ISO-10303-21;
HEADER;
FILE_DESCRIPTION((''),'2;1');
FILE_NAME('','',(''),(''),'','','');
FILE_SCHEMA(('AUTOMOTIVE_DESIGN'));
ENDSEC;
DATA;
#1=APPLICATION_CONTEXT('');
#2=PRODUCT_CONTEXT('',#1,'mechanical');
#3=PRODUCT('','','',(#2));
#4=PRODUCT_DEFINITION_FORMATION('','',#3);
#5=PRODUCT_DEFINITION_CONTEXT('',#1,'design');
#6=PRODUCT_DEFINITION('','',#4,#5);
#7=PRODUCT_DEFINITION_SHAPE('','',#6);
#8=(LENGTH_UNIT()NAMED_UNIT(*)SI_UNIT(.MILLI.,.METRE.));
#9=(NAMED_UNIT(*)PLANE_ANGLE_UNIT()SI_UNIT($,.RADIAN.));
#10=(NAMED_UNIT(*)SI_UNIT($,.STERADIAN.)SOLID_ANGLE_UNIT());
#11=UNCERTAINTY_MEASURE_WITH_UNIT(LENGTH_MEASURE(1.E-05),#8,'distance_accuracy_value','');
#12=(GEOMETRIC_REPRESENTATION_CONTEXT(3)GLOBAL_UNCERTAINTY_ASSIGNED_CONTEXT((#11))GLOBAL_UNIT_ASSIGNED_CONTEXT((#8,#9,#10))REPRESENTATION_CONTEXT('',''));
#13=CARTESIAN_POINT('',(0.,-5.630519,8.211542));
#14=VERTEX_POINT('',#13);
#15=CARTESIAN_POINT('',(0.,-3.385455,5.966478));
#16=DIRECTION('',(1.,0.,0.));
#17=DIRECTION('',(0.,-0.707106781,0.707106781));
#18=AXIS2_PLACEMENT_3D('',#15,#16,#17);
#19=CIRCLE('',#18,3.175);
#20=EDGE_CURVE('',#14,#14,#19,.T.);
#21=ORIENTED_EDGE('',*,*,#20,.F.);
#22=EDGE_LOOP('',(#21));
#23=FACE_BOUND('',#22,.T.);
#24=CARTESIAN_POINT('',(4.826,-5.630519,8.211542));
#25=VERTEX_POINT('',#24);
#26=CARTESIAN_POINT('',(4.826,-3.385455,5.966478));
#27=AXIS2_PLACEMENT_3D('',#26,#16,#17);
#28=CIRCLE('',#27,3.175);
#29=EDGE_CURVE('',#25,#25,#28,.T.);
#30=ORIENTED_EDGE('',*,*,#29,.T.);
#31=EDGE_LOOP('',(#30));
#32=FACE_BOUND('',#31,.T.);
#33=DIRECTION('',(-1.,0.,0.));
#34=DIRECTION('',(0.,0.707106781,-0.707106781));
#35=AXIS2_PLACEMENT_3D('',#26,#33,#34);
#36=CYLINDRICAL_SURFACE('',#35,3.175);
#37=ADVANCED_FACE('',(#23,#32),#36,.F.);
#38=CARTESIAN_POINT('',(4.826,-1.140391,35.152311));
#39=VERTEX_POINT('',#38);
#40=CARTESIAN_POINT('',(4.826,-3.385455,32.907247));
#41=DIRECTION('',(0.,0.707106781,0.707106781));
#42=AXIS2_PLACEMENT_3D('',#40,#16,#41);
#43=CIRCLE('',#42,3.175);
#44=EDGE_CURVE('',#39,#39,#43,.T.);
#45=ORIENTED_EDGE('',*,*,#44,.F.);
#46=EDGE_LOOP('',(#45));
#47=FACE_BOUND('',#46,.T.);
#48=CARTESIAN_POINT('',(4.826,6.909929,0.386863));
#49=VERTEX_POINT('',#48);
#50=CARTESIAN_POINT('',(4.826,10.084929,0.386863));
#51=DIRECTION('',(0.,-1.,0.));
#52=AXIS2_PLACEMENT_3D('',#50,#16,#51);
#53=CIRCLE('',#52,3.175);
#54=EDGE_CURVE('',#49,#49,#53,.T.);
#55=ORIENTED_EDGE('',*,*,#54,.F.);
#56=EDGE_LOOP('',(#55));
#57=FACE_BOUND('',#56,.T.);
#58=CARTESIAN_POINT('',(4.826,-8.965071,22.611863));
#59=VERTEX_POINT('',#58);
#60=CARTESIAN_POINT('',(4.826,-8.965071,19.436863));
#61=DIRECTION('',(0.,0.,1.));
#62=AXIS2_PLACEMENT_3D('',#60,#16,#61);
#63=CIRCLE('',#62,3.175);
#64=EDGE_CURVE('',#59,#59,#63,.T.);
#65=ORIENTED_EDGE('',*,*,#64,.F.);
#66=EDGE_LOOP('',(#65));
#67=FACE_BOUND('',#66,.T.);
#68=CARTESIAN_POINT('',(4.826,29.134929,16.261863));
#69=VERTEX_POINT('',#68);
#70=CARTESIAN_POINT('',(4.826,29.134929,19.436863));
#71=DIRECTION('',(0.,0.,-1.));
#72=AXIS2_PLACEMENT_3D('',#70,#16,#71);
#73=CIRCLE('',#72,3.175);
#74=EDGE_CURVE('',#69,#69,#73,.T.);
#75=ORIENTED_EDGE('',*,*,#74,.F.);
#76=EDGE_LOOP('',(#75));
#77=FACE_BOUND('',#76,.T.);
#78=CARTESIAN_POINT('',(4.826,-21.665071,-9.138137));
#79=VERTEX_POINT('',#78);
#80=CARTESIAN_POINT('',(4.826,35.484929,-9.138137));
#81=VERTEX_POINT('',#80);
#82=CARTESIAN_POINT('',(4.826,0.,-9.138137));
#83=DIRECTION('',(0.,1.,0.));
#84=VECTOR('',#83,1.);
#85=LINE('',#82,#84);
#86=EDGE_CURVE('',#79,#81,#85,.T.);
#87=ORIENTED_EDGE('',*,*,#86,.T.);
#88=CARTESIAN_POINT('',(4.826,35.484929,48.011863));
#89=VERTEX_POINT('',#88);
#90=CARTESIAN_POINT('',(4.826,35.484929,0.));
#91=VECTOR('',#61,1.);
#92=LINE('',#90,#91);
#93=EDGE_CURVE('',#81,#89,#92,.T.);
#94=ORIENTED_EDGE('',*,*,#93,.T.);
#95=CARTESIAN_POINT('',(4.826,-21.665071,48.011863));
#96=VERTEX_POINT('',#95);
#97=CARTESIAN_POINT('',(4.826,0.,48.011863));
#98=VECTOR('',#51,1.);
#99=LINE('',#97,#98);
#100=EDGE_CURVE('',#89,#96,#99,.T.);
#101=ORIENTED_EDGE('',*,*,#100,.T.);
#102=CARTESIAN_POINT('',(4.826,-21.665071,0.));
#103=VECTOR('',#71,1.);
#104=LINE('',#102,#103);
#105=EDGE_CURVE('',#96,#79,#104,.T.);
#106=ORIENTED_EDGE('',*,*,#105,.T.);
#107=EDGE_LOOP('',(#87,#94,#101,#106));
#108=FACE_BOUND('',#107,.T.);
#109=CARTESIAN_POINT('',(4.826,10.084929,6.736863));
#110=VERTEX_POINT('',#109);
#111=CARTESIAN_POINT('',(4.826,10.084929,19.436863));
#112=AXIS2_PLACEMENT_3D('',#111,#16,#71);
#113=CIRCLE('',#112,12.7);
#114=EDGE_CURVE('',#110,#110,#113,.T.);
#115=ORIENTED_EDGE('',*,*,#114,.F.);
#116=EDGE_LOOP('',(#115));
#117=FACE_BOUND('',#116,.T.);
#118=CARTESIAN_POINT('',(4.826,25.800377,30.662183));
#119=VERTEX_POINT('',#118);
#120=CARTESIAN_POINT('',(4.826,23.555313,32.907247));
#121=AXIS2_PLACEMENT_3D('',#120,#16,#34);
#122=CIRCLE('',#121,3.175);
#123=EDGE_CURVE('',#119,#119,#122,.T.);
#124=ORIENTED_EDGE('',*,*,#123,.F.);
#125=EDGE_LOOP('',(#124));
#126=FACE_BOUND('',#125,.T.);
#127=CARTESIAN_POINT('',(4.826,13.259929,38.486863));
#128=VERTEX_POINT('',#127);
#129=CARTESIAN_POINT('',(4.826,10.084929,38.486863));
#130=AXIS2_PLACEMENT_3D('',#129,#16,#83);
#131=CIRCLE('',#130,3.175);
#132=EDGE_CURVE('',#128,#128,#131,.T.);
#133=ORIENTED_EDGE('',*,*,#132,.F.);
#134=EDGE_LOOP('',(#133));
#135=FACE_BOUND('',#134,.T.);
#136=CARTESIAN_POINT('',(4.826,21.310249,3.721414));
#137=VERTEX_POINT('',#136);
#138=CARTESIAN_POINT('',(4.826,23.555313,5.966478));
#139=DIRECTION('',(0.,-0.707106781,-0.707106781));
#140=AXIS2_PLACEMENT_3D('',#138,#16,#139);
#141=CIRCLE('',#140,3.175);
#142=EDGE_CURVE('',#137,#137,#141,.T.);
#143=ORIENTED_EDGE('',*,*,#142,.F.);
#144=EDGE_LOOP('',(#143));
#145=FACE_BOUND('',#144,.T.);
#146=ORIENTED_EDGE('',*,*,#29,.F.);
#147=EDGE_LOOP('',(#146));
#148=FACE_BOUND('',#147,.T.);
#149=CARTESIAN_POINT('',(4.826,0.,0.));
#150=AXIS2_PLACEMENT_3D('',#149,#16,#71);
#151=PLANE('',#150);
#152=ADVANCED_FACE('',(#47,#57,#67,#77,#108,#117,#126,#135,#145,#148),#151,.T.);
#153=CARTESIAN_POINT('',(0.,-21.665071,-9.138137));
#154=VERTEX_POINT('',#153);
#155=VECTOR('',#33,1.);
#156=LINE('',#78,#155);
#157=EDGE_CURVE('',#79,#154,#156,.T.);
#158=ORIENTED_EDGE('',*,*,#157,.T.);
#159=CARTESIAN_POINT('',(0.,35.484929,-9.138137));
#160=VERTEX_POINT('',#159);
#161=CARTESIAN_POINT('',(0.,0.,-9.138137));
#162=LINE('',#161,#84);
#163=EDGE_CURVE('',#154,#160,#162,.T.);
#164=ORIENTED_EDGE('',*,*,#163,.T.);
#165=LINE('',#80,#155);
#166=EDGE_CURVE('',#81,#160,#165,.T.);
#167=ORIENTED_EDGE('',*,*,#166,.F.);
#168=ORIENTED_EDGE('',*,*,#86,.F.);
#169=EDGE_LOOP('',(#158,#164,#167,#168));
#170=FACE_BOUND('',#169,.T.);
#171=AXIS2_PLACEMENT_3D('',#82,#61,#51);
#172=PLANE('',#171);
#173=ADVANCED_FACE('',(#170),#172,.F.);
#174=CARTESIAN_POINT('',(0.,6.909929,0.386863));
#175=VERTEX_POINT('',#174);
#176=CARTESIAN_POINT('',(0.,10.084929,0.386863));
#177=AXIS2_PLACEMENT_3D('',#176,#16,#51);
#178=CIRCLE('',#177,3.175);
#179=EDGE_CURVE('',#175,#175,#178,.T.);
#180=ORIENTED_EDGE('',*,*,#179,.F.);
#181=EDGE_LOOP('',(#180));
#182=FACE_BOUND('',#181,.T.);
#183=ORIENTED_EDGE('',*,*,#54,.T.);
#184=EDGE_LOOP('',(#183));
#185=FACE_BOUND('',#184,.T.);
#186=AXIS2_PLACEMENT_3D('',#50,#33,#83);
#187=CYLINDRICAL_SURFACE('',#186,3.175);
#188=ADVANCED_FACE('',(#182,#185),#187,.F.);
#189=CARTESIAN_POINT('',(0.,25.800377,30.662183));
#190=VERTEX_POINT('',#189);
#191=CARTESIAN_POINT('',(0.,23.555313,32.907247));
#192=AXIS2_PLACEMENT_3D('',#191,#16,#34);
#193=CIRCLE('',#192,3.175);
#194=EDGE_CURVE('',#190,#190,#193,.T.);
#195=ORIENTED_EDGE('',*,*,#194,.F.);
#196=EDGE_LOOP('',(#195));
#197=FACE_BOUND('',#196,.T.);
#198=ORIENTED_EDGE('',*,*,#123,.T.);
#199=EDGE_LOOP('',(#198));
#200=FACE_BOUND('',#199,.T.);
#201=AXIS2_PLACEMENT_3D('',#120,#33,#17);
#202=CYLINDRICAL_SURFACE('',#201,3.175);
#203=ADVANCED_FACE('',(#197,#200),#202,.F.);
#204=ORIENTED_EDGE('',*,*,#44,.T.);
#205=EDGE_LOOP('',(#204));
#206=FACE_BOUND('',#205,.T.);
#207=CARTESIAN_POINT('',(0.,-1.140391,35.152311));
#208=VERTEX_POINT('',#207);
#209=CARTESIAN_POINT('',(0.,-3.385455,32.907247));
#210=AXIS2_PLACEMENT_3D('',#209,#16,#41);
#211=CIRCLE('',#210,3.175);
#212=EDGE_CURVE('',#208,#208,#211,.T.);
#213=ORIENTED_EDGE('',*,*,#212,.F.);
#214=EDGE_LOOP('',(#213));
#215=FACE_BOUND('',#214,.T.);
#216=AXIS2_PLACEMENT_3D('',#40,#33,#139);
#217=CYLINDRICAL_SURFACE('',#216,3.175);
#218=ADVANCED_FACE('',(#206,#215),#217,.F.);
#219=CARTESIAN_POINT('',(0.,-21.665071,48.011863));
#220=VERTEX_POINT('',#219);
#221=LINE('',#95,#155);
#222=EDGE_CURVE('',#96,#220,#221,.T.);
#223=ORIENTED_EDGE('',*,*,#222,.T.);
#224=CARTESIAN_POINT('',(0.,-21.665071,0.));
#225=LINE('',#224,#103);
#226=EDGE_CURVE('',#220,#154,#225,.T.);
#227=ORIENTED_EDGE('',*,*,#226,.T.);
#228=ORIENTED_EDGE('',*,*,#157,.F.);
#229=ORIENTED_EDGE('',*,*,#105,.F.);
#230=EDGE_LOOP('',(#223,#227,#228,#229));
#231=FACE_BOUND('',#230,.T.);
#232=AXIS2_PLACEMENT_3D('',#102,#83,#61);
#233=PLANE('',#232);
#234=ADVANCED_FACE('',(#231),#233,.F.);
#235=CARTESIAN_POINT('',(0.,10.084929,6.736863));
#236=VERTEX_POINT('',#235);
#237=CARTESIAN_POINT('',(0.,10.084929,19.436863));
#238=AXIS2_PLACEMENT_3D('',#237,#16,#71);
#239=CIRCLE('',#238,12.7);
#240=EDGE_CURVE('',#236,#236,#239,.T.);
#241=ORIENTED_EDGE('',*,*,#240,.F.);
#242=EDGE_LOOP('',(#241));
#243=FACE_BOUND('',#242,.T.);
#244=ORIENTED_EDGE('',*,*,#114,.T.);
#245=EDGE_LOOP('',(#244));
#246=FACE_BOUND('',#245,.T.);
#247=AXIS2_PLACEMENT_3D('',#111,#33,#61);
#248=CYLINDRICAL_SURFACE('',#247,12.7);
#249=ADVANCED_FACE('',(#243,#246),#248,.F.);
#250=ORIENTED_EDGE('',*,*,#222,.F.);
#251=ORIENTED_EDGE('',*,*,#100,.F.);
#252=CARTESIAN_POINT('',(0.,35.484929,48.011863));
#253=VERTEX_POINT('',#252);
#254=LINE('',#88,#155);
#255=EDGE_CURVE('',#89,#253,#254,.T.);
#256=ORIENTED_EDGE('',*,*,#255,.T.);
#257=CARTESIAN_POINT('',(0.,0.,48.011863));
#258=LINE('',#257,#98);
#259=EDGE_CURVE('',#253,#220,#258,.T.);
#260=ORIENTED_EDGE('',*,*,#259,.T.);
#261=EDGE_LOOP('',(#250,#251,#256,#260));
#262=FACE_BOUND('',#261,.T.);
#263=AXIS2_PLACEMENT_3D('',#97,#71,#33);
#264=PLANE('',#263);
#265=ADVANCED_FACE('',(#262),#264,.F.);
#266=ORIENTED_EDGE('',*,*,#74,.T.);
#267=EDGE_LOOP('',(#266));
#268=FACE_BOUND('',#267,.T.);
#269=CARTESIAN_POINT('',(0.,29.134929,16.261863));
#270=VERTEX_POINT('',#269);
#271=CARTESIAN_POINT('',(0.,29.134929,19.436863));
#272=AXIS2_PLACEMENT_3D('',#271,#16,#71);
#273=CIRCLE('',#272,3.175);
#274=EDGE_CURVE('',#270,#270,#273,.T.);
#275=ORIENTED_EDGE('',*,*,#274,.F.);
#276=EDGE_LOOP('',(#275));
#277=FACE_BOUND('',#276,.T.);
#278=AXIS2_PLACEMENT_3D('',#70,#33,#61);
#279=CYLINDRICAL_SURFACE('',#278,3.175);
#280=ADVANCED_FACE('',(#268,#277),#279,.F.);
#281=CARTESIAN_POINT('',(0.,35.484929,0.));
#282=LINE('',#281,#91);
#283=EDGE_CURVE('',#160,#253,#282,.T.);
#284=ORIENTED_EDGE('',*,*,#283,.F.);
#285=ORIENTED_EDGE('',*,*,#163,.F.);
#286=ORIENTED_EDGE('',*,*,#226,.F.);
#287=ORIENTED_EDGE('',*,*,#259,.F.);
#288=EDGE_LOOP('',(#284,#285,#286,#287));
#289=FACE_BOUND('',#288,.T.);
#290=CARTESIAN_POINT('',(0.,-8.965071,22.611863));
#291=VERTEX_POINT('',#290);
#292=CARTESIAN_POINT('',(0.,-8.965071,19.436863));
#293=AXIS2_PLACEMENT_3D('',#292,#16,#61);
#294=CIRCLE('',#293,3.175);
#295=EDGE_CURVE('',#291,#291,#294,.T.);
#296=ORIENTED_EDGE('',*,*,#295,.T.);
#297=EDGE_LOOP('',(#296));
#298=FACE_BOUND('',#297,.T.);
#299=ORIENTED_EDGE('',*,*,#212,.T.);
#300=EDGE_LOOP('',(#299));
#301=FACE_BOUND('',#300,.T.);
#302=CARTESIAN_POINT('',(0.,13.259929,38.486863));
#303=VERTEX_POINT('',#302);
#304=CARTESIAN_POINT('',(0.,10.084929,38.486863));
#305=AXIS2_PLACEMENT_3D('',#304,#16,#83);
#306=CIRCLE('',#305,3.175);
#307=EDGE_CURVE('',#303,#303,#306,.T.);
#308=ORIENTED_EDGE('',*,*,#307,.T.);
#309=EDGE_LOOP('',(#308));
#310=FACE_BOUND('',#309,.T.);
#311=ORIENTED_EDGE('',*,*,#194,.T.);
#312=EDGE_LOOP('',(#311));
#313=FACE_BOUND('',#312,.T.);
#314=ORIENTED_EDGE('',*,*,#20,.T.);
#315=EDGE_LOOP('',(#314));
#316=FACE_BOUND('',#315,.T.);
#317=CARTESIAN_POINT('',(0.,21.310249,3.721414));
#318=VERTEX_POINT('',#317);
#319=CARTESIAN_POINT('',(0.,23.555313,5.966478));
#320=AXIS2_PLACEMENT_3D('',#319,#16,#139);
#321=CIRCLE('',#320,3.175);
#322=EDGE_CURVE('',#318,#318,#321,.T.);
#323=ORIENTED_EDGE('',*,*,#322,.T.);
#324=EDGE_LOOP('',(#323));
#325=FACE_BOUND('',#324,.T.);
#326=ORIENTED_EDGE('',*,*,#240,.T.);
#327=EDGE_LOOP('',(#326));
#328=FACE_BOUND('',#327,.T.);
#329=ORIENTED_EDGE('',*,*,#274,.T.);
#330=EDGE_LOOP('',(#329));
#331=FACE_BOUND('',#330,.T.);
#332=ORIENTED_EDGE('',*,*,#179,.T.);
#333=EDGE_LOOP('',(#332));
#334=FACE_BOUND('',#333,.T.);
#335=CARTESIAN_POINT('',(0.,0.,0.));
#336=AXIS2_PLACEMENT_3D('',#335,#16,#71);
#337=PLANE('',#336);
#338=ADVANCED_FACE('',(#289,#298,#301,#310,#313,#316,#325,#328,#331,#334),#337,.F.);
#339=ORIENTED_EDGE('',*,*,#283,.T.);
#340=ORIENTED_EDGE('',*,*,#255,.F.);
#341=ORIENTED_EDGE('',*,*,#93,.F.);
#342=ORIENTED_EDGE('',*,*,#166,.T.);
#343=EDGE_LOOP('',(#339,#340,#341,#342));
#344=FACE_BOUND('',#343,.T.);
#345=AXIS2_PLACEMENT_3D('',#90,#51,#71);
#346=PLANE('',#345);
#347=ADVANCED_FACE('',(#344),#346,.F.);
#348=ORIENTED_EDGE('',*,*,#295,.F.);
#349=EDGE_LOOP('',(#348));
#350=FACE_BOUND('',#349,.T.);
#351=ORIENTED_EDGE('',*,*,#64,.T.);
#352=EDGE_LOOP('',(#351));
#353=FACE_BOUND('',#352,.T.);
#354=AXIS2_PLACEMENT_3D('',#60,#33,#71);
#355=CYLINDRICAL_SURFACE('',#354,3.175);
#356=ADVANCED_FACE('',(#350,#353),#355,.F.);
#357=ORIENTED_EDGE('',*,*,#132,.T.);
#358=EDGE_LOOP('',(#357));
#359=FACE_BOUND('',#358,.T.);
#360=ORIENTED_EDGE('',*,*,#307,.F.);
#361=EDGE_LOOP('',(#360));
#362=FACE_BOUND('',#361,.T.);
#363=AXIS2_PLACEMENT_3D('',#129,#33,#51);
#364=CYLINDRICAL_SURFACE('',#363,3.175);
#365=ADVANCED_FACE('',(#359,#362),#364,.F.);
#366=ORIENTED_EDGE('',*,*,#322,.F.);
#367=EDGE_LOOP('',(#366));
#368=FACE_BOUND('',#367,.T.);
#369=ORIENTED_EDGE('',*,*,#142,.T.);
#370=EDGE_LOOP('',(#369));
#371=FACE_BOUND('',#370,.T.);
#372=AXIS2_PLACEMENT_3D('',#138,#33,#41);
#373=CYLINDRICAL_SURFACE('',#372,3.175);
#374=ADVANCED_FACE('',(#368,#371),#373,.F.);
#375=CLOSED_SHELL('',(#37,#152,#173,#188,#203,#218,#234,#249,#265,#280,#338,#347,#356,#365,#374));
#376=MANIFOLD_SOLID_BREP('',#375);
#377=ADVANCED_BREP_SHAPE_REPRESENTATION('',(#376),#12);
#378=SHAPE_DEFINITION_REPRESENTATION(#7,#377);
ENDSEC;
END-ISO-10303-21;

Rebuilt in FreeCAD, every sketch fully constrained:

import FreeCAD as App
import Part
import Sketcher

V = App.Vector
Q = App.Units.Quantity

doc = App.newDocument("Part")
params = doc.addObject("Spreadsheet::Sheet", "Params")
for row, (alias, value) in enumerate([
    ("sketch1_diameter", "1 in"),
    ("sketch1_width", "2.25 in"),
    ("pad1_length", "0.19 in"),
    ("sketch2_diameter", "0.25 in"),
], start=1):
    params.set(f"A{row}", alias)
    params.set(f"B{row}", "=" + value)
    params.setAlias(f"B{row}", alias)

body = doc.addObject("PartDesign::Body", "Body")

sketch1 = doc.addObject("Sketcher::SketchObject", "Sketch")
body.addObject(sketch1)
sketch1.AttachmentSupport = (doc.YZ_Plane, [""])
sketch1.MapMode = "FlatFace"
sketch1.addGeometry([
    Part.LineSegment(V(35, 48, 0), V(-22, 48, 0)),
    Part.LineSegment(V(-22, 48, 0), V(-22, -9, 0)),
    Part.LineSegment(V(-22, -9, 0), V(35, -9, 0)),
    Part.LineSegment(V(35, -9, 0), V(35, 48, 0)),
    Part.Circle(V(10, 19, 0), V(0, 0, 1), 13),
], False)
sketch1.addConstraint([
    Sketcher.Constraint("Coincident", 0, 2, 1, 1),
    Sketcher.Constraint("Coincident", 1, 2, 2, 1),
    Sketcher.Constraint("Coincident", 2, 2, 3, 1),
    Sketcher.Constraint("Coincident", 3, 2, 0, 1),
    Sketcher.Constraint("Horizontal", 0),
    Sketcher.Constraint("Vertical", 1),
    Sketcher.Constraint("Horizontal", 2),
    Sketcher.Constraint("Vertical", 3),
    Sketcher.Constraint("Equal", 2, 1),
    Sketcher.Constraint("Diameter", 4, Q("1 in")),
    Sketcher.Constraint("DistanceX", 4, 3, 2, 2, Q("1 in")),
    Sketcher.Constraint("DistanceX", 0, 2, 0, 1, Q("2.25 in")),
    Sketcher.Constraint("DistanceY", 4, 3, 0, 2, Q("1.125 in")),
    Sketcher.Constraint("DistanceX", -1, 1, 4, 3, 10.084929),
    Sketcher.Constraint("DistanceY", -1, 1, 4, 3, 19.436863),
])
sketch1.setExpression("Constraints[9]", "Params.sketch1_diameter")
sketch1.setExpression("Constraints[11]", "Params.sketch1_width")
pad1 = doc.addObject("PartDesign::Pad", "Pad")
body.addObject(pad1)
pad1.Profile = sketch1
pad1.setExpression("Length", "Params.pad1_length")

sketch2 = doc.addObject("Sketcher::SketchObject", "Sketch001")
body.addObject(sketch2)
sketch2.AttachmentSupport = (doc.YZ_Plane, [""])
sketch2.MapMode = "FlatFace"
sketch2.addGeometry(Part.Circle(V(29.1, 19.4, 0), V(0, 0, 1), 3.2), False)
sketch2.addConstraint([
    Sketcher.Constraint("Diameter", 0, Q("0.25 in")),
    Sketcher.Constraint("DistanceX", -1, 1, 0, 3, 29.134929),
    Sketcher.Constraint("DistanceY", -1, 1, 0, 3, 19.436863),
])
sketch2.setExpression("Constraints[0]", "Params.sketch2_diameter")
pocket1 = doc.addObject("PartDesign::Pocket", "Pocket")
body.addObject(pocket1)
pocket1.Profile = sketch2
pocket1.Type = "ThroughAll"
pocket1.Reversed = True
doc.recompute()

datumline = doc.addObject("PartDesign::Line", "DatumLine")
body.addObject(datumline)
datumline.Placement = App.Placement(V(0, 10.084929, 19.436863), App.Rotation(V(0, 0, 1), V(1, 0, 0)))
polarpattern = doc.addObject("PartDesign::PolarPattern", "PolarPattern")
body.addObject(polarpattern)
polarpattern.Originals = [pocket1]
polarpattern.Axis = (datumline, [""])
polarpattern.Angle = 360
polarpattern.Occurrences = 8
body.Tip = polarpattern

doc.recompute()
